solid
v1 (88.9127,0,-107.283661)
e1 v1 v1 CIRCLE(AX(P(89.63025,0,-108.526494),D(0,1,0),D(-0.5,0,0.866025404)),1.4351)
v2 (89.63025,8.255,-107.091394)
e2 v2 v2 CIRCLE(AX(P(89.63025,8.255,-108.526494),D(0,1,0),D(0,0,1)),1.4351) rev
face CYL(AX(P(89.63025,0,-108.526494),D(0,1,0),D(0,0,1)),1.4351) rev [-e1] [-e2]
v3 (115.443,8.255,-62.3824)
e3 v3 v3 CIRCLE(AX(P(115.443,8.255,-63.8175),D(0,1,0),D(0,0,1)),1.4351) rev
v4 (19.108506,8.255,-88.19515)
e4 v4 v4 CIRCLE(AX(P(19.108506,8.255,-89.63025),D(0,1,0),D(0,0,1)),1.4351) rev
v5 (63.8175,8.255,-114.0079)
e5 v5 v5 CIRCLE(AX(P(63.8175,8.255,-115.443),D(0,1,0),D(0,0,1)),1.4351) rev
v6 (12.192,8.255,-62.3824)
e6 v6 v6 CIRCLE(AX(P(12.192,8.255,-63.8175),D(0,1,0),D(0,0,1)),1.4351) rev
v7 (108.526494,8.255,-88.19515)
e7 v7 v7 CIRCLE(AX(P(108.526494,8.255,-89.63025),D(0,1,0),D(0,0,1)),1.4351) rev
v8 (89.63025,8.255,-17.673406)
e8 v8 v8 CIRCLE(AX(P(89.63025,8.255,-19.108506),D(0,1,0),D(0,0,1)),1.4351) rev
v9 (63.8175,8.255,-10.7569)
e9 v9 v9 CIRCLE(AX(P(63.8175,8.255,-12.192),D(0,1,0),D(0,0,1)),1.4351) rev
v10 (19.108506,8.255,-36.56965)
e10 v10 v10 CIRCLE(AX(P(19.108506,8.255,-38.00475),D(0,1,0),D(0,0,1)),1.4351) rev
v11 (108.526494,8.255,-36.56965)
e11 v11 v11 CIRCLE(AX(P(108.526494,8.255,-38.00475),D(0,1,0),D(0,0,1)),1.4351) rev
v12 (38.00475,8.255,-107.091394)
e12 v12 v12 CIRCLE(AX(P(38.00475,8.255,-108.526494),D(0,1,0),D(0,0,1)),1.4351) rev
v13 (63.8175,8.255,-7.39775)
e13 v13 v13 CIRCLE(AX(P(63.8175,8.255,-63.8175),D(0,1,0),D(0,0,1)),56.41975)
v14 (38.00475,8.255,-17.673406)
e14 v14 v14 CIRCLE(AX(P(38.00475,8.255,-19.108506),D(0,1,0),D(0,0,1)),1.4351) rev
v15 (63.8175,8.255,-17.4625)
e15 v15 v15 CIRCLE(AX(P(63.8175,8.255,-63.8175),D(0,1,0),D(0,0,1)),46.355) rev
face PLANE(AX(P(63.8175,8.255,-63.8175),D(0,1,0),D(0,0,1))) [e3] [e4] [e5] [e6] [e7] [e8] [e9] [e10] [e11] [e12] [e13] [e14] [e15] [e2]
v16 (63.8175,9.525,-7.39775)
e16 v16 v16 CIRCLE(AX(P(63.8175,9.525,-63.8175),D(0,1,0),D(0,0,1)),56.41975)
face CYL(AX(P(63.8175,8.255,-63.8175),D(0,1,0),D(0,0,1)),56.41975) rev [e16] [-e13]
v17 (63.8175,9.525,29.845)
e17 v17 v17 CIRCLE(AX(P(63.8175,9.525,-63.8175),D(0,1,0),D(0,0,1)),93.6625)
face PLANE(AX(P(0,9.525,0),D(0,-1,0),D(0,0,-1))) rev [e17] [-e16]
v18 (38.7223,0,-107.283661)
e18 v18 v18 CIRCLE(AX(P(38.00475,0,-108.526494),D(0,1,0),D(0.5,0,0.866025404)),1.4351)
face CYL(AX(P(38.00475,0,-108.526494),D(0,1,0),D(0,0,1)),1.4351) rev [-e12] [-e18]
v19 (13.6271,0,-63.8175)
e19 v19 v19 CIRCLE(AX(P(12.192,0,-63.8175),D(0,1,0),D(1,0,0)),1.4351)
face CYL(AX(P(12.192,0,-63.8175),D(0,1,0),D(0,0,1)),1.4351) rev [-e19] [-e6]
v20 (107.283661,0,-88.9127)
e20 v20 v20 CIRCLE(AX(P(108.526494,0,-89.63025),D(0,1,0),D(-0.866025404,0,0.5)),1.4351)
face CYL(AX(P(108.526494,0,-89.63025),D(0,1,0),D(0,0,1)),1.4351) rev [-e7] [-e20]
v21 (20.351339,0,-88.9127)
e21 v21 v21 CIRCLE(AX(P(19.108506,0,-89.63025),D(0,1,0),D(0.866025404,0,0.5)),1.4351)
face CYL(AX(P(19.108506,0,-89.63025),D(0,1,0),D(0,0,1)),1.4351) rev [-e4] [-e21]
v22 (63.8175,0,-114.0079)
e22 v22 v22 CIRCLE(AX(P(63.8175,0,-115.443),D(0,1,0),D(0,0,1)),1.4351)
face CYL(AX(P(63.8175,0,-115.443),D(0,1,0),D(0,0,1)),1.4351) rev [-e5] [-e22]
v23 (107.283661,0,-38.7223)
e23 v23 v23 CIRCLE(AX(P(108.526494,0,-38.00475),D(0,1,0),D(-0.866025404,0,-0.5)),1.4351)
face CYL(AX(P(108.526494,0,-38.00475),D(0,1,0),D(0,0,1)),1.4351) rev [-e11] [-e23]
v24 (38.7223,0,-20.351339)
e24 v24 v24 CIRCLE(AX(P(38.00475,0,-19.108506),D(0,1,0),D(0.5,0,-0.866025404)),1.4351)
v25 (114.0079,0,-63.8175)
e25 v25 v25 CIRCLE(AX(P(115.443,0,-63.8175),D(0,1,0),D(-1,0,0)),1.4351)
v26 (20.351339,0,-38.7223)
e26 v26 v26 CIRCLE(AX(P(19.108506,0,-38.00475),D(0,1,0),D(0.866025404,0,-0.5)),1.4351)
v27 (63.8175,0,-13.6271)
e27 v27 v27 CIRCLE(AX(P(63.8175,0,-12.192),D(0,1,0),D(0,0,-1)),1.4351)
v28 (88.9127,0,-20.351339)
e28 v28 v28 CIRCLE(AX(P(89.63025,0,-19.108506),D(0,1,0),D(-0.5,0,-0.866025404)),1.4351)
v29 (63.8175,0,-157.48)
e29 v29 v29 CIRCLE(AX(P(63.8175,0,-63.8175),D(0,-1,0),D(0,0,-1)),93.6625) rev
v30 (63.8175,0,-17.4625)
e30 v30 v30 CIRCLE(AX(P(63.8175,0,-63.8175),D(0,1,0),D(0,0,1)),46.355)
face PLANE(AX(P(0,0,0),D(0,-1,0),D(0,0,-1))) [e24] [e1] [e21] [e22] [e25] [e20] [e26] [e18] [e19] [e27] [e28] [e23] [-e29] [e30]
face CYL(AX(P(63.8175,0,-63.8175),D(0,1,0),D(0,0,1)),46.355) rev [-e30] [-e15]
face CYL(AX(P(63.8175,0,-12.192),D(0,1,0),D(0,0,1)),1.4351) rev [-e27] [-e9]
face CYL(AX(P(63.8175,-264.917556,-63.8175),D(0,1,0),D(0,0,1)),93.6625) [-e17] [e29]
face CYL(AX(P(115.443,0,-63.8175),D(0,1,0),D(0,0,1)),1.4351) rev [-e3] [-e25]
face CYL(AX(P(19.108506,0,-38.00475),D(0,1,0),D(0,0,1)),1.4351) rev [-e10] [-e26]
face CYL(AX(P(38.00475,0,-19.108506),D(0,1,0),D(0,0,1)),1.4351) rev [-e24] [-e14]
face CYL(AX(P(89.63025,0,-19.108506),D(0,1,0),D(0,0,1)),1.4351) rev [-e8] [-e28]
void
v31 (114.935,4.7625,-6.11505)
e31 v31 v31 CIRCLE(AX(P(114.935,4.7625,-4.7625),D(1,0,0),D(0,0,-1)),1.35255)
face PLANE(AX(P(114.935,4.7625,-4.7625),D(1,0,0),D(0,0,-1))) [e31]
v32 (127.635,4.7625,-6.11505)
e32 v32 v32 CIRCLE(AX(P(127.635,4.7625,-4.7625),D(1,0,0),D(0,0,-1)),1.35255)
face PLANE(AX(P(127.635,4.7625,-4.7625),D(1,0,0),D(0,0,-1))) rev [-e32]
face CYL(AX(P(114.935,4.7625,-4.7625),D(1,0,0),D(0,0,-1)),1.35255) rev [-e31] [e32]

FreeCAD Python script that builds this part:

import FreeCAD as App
import Part
import Sketcher
from FreeCAD import Vector
Q = App.Units.Quantity

doc = App.newDocument("Part")
body = doc.addObject("PartDesign::Body", "Body")

sketch1 = body.newObject("Sketcher::SketchObject", "Sketch")
sketch1.AttachmentSupport = (doc.getObject("XZ_Plane"), [""])
sketch1.MapMode = "FlatFace"
sketch1.addGeometry(Part.LineSegment(Vector(0, -128, 0), Vector(0, 0, 0)), False)
sketch1.addGeometry(Part.LineSegment(Vector(0, 0, 0), Vector(128, 0, 0)), False)
sketch1.addGeometry(Part.LineSegment(Vector(128, 0, 0), Vector(128, -128, 0)), False)
sketch1.addGeometry(Part.LineSegment(Vector(128, -128, 0), Vector(0, -128, 0)), False)
sketch1.addConstraint(Sketcher.Constraint("Coincident", 0, 2, 1, 1))
sketch1.addConstraint(Sketcher.Constraint("Coincident", 1, 2, 2, 1))
sketch1.addConstraint(Sketcher.Constraint("Coincident", 2, 2, 3, 1))
sketch1.addConstraint(Sketcher.Constraint("Coincident", 3, 2, 0, 1))
sketch1.addConstraint(Sketcher.Constraint("Vertical", 0))
sketch1.addConstraint(Sketcher.Constraint("Horizontal", 1))
sketch1.addConstraint(Sketcher.Constraint("Vertical", 2))
sketch1.addConstraint(Sketcher.Constraint("Horizontal", 3))
sketch1.addConstraint(Sketcher.Constraint("Coincident", 0, 2, -1, 1))
sketch1.addConstraint(Sketcher.Constraint("Equal", 3, 0))
sketch1.addConstraint(Sketcher.Constraint("DistanceX", 1, 1, 1, 2, Q("5.025 in")))
pad1 = body.newObject("PartDesign::Pad", "Pad")
pad1.Profile = sketch1
pad1.Length = Q("0.375 in")
pad1.Reversed = True

sketch2 = body.newObject("Sketcher::SketchObject", "Sketch001")
sketch2.AttachmentSupport = (doc.getObject("XZ_Plane"), [""])
sketch2.MapMode = "FlatFace"
sketch2.AttachmentOffset = App.Placement(Vector(0, 0, -0.375 * 25.4), App.Rotation())
sketch2.addGeometry(Part.Circle(Vector(64, -64, 0), Vector(0, 0, 1), 94), False)
sketch2.addConstraint(Sketcher.Constraint("Diameter", 0, Q("7.375 in")))
sketch2.addConstraint(Sketcher.Constraint("DistanceX", -1, 1, 0, 3, Q("2.5125 in")))
sketch2.addConstraint(Sketcher.Constraint("DistanceY", 0, 3, -1, 1, Q("2.5125 in")))
pad2 = body.newObject("PartDesign::Pad", "Pad001")
pad2.Profile = sketch2
pad2.Length = Q("0.375 in")

sketch3 = body.newObject("Sketcher::SketchObject", "Sketch002")
sketch3.AttachmentSupport = (doc.getObject("YZ_Plane"), [""])
sketch3.MapMode = "FlatFace"
sketch3.AttachmentOffset = App.Placement(Vector(0, 0, 5.025 * 25.4), App.Rotation())
sketch3.addGeometry(Part.Circle(Vector(4.8, -4.8, 0), Vector(0, 0, 1), 1.4), False)
sketch3.addConstraint(Sketcher.Constraint("Diameter", 0, Q("0.1065 in")))
sketch3.addConstraint(Sketcher.Constraint("DistanceX", -1, 1, 0, 3, Q("0.1875 in")))
sketch3.addConstraint(Sketcher.Constraint("DistanceY", 0, 3, -1, 1, Q("0.1875 in")))
pocket1 = body.newObject("PartDesign::Pocket", "Pocket")
pocket1.Profile = sketch3
pocket1.Length = Q("0.5 in")

sketch4 = body.newObject("Sketcher::SketchObject", "Sketch003")
sketch4.AttachmentSupport = (doc.getObject("XZ_Plane"), [""])
sketch4.MapMode = "FlatFace"
sketch4.AttachmentOffset = App.Placement(Vector(0, 0, -0.375 * 25.4), App.Rotation())
sketch4.addGeometry(Part.Circle(Vector(64, -64, 0), Vector(0, 0, 1), 46), False)
sketch4.addConstraint(Sketcher.Constraint("Diameter", 0, Q("3.65 in")))
sketch4.addConstraint(Sketcher.Constraint("DistanceX", -1, 1, 0, 3, Q("2.5125 in")))
sketch4.addConstraint(Sketcher.Constraint("DistanceY", 0, 3, -1, 1, Q("2.5125 in")))
pocket2 = body.newObject("PartDesign::Pocket", "Pocket001")
pocket2.Profile = sketch4
pocket2.Length = Q("0.375 in")
pocket2.Reversed = True

sketch5 = body.newObject("Sketcher::SketchObject", "Sketch004")
sketch5.AttachmentSupport = (doc.getObject("XZ_Plane"), [""])
sketch5.MapMode = "FlatFace"
sketch5.AttachmentOffset = App.Placement(Vector(0, 0, -0.375 * 25.4), App.Rotation())
sketch5.addGeometry(Part.Circle(Vector(63.8, -115.4, 0), Vector(0, 0, 1), 1.4), False)
sketch5.addConstraint(Sketcher.Constraint("Diameter", 0, Q("0.113 in")))
sketch5.addConstraint(Sketcher.Constraint("DistanceY", 0, 3, -1, 1, Q("4.545 in")))
sketch5.addConstraint(Sketcher.Constraint("DistanceX", -1, 1, 0, 3, Q("2.5125 in")))
pocket3 = body.newObject("PartDesign::Pocket", "Pocket002")
pocket3.Profile = sketch5
pocket3.Type = "ThroughAll"
pocket3.Reversed = True
doc.recompute()

datumline = body.newObject("PartDesign::Line", "DatumLine")
datumline.Placement = App.Placement(Vector(63.8175, 0, -63.8175), App.Rotation(Vector(0, 0, 1), Vector(0, 1, 0)))
polarpattern = body.newObject("PartDesign::PolarPattern", "PolarPattern")
polarpattern.Originals = [pocket3]
polarpattern.Axis = (datumline, [""])
polarpattern.Angle = 360
polarpattern.Occurrences = 12
body.Tip = polarpattern

sketch6 = body.newObject("Sketcher::SketchObject", "Sketch005")
sketch6.AttachmentSupport = (doc.getObject("XZ_Plane"), [""])
sketch6.MapMode = "FlatFace"
sketch6.AttachmentOffset = App.Placement(Vector(0, 0, -0.375 * 25.4), App.Rotation())
sketch6.addGeometry(Part.Circle(Vector(64, -64, 0), Vector(0, 0, 1), 56), False)
sketch6.addConstraint(Sketcher.Constraint("Diameter", 0, Q("4.4425 in")))
sketch6.addConstraint(Sketcher.Constraint("DistanceX", -1, 1, 0, 3, Q("2.5125 in")))
sketch6.addConstraint(Sketcher.Constraint("DistanceY", 0, 3, -1, 1, Q("2.5125 in")))
pocket4 = body.newObject("PartDesign::Pocket", "Pocket003")
pocket4.Profile = sketch6
pocket4.Length = Q("0.05 in")
pocket4.Reversed = True

doc.recompute()
